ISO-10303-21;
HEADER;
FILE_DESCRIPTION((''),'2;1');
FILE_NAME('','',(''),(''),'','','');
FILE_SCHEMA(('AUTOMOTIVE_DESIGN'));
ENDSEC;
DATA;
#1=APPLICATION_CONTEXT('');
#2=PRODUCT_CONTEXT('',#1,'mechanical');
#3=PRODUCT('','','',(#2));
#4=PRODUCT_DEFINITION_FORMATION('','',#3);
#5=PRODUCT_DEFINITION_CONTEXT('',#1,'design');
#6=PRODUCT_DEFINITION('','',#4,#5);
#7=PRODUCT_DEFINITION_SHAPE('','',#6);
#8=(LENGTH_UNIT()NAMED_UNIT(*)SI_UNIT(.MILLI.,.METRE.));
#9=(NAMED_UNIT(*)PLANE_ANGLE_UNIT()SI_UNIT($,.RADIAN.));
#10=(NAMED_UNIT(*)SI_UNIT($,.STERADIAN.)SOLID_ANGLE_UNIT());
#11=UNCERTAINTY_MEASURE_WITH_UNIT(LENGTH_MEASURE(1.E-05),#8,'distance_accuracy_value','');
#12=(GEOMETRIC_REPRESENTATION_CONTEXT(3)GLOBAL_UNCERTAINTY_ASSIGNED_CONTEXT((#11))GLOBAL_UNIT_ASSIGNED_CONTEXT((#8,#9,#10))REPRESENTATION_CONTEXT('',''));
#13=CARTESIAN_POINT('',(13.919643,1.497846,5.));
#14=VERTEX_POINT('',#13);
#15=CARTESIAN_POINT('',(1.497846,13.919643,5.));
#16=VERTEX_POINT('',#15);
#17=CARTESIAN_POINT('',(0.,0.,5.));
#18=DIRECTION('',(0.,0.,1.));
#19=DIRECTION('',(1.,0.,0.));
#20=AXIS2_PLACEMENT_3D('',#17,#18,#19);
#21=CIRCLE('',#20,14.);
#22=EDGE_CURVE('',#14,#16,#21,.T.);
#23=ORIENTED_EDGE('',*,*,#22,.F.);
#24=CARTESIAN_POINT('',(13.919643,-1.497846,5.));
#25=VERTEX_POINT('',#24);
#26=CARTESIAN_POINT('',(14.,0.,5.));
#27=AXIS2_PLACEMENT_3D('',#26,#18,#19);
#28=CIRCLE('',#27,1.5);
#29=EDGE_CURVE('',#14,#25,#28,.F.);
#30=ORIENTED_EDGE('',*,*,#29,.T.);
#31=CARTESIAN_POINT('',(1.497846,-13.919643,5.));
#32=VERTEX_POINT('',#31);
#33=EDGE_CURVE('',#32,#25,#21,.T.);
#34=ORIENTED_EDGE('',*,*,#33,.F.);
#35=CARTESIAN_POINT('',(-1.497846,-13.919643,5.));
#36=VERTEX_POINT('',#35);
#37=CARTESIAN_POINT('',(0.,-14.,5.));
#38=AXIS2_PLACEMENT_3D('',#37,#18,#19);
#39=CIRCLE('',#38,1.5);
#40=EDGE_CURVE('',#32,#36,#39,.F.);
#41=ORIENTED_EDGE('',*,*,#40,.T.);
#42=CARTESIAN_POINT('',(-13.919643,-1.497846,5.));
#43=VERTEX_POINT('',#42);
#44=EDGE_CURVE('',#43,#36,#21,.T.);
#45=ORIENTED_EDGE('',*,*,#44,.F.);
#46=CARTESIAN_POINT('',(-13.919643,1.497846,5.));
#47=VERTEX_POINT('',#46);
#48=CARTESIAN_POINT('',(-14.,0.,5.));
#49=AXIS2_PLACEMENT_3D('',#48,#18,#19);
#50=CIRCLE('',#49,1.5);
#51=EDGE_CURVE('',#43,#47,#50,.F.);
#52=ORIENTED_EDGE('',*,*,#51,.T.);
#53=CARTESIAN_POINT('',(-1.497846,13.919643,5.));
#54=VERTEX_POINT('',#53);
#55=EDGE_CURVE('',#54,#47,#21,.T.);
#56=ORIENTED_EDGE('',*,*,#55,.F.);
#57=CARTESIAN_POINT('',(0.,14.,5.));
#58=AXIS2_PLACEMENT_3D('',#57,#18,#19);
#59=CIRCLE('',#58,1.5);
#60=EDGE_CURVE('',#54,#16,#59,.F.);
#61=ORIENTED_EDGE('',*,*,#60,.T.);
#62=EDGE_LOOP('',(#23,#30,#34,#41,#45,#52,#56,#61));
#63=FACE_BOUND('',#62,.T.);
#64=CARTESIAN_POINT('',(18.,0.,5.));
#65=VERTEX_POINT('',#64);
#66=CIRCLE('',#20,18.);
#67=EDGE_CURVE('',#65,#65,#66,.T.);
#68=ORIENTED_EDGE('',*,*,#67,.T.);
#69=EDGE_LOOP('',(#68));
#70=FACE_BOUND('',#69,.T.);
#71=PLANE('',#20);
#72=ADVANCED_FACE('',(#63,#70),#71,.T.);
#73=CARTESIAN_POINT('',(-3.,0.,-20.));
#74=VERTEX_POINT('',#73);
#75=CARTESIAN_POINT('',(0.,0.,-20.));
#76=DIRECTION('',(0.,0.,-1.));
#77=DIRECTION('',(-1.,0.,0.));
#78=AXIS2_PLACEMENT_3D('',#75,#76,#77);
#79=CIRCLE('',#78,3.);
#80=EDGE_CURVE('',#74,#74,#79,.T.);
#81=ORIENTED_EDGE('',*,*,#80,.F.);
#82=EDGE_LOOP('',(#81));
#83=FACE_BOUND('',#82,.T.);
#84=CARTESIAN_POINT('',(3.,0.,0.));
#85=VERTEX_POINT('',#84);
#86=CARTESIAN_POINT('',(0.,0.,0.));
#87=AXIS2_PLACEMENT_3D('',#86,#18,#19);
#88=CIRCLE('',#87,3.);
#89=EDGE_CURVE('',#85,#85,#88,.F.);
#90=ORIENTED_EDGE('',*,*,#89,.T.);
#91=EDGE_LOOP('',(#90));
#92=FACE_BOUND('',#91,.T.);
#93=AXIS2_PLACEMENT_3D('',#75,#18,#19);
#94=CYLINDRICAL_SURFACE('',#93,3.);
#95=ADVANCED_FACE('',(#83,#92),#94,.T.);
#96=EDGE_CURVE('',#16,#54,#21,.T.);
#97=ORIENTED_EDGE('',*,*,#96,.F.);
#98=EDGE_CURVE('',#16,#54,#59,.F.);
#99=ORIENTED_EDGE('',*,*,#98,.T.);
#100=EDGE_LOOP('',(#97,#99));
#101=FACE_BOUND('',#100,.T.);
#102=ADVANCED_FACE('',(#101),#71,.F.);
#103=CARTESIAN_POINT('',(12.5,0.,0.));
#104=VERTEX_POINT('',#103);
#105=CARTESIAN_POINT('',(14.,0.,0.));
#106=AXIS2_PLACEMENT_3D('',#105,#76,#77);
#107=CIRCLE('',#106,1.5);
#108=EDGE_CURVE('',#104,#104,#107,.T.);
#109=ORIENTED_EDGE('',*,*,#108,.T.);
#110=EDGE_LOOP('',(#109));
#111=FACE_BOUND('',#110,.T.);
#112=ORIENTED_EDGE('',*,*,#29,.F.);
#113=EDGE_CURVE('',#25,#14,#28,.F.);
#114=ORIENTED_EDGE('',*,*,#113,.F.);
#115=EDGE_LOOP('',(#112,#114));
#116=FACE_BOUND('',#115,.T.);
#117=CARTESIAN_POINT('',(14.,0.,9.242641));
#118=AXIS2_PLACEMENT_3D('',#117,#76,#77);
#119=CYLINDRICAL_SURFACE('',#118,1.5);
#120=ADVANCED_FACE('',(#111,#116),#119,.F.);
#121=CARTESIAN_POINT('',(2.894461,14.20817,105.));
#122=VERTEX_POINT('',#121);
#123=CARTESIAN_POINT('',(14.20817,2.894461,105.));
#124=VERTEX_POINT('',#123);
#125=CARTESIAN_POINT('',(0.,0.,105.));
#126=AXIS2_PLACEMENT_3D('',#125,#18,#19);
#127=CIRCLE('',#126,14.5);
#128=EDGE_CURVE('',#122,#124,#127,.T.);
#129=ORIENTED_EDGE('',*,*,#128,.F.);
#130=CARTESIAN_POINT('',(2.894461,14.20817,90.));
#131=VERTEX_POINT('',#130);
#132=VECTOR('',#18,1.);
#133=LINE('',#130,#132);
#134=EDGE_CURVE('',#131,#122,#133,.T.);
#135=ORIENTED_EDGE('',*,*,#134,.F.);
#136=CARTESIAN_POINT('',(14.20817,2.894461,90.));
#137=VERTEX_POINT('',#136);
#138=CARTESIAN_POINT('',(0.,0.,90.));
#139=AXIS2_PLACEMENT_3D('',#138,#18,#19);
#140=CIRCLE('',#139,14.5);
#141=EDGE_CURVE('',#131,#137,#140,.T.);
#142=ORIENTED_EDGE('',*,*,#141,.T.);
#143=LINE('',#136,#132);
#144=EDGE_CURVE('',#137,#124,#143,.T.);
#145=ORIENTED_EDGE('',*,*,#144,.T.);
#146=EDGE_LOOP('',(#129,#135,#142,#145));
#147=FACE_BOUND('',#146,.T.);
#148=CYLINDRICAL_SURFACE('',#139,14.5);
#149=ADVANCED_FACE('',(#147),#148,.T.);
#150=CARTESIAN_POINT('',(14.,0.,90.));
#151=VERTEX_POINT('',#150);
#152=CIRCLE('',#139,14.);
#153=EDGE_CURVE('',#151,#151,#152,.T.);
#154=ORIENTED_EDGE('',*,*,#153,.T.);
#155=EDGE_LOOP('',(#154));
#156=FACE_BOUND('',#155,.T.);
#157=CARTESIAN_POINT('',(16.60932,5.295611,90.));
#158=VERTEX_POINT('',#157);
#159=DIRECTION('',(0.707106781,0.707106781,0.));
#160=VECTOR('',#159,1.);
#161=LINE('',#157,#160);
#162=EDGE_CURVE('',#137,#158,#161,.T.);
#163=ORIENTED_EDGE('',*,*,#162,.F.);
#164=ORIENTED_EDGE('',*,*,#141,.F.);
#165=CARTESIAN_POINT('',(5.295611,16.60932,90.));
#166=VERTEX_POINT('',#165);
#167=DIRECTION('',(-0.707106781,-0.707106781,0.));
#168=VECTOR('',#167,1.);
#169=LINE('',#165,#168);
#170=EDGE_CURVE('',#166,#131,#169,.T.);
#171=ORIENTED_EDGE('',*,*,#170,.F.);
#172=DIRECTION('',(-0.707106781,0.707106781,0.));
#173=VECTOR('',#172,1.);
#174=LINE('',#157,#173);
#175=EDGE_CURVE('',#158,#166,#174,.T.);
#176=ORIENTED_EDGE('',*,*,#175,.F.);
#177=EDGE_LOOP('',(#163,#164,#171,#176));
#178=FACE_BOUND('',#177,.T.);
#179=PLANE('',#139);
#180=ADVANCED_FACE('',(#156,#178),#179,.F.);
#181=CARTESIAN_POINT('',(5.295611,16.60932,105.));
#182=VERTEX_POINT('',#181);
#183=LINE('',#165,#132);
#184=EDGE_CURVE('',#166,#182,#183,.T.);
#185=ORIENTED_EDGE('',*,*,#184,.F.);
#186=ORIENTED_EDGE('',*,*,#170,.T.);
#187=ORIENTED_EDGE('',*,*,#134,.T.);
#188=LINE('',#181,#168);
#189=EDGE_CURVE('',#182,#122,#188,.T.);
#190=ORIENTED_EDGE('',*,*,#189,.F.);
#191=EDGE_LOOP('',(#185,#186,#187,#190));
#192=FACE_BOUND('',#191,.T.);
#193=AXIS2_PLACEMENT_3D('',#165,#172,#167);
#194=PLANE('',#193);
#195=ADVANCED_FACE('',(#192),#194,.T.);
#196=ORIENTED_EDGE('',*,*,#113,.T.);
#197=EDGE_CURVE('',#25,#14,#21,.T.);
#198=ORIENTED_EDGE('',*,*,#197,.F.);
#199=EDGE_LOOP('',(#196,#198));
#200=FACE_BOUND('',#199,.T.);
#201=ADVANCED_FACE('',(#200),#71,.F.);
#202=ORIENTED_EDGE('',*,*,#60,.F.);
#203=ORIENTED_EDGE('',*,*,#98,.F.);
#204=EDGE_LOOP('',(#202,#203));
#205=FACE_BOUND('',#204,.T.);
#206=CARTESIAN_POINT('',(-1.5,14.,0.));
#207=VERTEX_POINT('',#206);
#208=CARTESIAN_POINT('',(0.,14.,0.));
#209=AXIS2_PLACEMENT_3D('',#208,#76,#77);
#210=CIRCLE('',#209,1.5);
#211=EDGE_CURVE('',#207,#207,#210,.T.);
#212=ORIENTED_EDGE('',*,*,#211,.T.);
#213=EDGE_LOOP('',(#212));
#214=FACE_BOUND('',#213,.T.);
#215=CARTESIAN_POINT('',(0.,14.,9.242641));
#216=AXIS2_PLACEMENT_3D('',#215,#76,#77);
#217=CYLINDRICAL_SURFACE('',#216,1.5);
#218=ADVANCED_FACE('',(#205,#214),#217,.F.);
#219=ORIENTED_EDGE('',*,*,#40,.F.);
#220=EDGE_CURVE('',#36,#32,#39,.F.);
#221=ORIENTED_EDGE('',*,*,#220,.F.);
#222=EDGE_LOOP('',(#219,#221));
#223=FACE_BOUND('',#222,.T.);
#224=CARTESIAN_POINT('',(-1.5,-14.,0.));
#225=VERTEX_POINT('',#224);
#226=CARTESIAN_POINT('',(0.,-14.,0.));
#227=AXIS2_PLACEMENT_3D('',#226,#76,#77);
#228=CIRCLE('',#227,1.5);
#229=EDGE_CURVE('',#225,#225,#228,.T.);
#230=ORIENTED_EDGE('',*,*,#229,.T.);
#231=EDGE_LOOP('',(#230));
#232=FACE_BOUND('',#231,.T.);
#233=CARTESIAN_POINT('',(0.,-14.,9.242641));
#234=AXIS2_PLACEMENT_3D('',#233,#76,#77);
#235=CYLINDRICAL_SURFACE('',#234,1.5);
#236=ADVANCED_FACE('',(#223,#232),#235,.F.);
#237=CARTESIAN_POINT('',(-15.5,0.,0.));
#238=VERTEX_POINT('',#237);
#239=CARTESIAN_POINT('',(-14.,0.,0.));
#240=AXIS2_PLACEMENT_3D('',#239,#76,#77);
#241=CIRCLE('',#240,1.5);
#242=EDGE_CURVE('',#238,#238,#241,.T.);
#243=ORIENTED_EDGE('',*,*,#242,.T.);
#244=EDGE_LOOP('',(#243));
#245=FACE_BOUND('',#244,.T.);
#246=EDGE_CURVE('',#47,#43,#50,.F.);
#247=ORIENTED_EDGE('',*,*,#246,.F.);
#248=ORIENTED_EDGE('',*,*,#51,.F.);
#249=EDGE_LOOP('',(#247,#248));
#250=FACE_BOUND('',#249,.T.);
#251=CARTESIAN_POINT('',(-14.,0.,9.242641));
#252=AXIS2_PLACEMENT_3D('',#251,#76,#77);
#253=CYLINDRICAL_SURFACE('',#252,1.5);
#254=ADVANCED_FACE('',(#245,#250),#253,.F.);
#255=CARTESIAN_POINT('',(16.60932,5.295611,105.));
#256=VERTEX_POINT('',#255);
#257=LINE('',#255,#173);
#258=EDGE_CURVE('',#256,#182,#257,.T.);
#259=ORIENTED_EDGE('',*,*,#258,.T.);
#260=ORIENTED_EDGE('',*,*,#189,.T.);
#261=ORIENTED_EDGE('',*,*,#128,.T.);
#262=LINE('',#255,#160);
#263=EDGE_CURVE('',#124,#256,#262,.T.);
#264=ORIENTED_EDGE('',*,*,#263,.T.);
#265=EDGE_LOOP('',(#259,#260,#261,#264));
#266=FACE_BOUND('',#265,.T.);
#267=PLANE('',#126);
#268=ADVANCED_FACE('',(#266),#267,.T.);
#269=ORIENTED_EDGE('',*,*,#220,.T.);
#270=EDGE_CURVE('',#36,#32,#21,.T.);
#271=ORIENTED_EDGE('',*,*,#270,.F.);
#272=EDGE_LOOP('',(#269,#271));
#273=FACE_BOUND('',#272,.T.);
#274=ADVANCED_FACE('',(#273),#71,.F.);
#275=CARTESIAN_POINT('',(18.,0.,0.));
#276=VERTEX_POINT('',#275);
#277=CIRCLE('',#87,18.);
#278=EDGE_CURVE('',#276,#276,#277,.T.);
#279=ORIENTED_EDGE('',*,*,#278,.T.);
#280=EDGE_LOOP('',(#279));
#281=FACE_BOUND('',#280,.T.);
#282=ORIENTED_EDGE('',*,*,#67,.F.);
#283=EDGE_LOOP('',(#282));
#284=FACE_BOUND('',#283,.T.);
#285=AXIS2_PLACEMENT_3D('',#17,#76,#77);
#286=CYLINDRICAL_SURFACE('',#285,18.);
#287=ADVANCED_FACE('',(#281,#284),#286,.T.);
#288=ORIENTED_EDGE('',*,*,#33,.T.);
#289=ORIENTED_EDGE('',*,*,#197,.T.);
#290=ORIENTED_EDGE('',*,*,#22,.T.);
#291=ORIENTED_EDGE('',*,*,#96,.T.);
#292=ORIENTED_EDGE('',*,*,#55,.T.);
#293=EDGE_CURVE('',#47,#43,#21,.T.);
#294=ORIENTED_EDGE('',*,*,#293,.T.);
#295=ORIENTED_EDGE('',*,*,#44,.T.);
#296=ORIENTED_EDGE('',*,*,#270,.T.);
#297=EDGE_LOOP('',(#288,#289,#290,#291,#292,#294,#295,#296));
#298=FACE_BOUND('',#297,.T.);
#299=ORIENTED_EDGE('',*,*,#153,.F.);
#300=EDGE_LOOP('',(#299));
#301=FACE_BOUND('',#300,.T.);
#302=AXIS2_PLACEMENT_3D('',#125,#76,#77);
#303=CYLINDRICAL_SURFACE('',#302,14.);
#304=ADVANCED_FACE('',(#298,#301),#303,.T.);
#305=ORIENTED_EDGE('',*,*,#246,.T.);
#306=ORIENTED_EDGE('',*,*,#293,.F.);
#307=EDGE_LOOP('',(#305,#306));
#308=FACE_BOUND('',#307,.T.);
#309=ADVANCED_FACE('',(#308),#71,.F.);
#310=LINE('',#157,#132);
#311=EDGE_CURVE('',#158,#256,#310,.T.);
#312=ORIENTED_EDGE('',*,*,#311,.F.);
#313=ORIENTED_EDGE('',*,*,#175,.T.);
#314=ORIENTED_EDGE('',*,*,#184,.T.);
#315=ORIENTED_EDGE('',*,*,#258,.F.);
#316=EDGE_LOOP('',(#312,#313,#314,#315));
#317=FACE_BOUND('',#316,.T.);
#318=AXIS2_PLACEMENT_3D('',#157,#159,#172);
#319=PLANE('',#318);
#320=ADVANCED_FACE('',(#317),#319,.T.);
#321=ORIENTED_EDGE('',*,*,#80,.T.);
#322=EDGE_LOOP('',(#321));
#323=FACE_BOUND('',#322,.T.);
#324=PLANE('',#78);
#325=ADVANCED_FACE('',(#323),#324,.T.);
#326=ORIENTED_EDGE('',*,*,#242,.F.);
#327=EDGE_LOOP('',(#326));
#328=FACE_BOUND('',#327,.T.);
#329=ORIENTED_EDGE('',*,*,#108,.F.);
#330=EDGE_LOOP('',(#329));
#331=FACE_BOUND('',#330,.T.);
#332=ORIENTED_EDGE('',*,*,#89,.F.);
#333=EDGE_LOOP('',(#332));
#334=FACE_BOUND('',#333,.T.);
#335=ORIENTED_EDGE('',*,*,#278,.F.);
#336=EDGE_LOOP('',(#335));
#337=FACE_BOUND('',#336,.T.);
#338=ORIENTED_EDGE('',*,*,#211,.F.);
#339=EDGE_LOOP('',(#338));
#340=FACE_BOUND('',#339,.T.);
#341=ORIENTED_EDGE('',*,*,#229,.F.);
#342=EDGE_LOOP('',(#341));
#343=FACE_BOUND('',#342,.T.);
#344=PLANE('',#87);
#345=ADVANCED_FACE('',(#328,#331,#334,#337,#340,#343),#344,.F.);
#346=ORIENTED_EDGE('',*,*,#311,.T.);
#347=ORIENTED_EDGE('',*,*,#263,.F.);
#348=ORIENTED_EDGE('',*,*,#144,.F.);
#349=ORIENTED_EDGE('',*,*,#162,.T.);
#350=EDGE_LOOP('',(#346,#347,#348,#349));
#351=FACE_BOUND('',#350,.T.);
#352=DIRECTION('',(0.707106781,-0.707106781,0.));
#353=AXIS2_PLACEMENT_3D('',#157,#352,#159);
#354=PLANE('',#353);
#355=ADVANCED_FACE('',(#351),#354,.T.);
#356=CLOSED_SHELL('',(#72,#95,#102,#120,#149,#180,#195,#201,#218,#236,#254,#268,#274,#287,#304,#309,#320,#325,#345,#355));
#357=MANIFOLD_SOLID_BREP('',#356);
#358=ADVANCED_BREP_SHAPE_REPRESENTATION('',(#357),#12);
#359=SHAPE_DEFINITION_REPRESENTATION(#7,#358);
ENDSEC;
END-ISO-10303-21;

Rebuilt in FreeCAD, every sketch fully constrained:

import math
import FreeCAD as App
import Part
import Sketcher

V = App.Vector
Q = App.Units.Quantity

doc = App.newDocument("Part")
body = doc.addObject("PartDesign::Body", "Body")

# Sketch on XY plane
sketch1 = body.newObject("Sketcher::SketchObject", "Sketch")
sketch1.AttachmentSupport = (doc.getObject("XY_Plane"), [""])
sketch1.MapMode = "FlatFace"
sketch1.addGeometry(Part.Circle(V(0, 0, 0), V(0, 0, 1), 18), False)
sketch1.addConstraint([
    Sketcher.Constraint("Coincident", 0, 3, -1, 1),
    Sketcher.Constraint("Diameter", 0, 36.0),
])
pad1 = body.newObject("PartDesign::Pad", "Pad")
pad1.Profile = sketch1
pad1.Length = 5

# Sketch on XY plane
sketch2 = body.newObject("Sketcher::SketchObject", "Sketch001")
sketch2.AttachmentSupport = (doc.getObject("XY_Plane"), [""])
sketch2.MapMode = "FlatFace"
sketch2.AttachmentOffset = App.Placement(V(0, 0, 5), App.Rotation())
sketch2.addGeometry(Part.Circle(V(0, 0, 0), V(0, 0, 1), 14), False)
sketch2.addConstraint([
    Sketcher.Constraint("Coincident", 0, 3, -1, 1),
    Sketcher.Constraint("Diameter", 0, 28.0),
])
pad2 = body.newObject("PartDesign::Pad", "Pad001")
pad2.Profile = sketch2
pad2.Length = 100

# Sketch on XY plane
sketch3 = body.newObject("Sketcher::SketchObject", "Sketch002")
sketch3.AttachmentSupport = (doc.getObject("XY_Plane"), [""])
sketch3.MapMode = "FlatFace"
sketch3.AttachmentOffset = App.Placement(V(0, 0, 105), App.Rotation())
sketch3.addGeometry([
    Part.LineSegment(V(16.6, 5.3, 0), V(5.3, 16.6, 0)),
    Part.LineSegment(V(5.3, 16.6, 0), V(2.9, 14.2, 0)),
    Part.ArcOfCircle(Part.Circle(V(0, 0, 0), V(0, 0, 1), 14.5), math.radians(78), math.radians(372)),
    Part.LineSegment(V(14.2, 2.9, 0), V(16.6, 5.3, 0)),
], False)
sketch3.addConstraint([
    Sketcher.Constraint("Coincident", 0, 2, 1, 1),
    Sketcher.Constraint("Coincident", 1, 2, 2, 1),
    Sketcher.Constraint("Coincident", 2, 2, 3, 1),
    Sketcher.Constraint("Coincident", 3, 2, 0, 1),
    Sketcher.Constraint("Coincident", 2, 3, -1, 1),
    Sketcher.Constraint("Perpendicular", 0, 1),
    Sketcher.Constraint("Parallel", 1, 3),
    Sketcher.Constraint("Equal", 1, 3),
    Sketcher.Constraint("Radius", 2, 14.5),
    Sketcher.Constraint("Angle", 0, Q("135 deg")),
    Sketcher.Constraint("Distance", 0, 16.0),
    Sketcher.Constraint("Distance", 1, 3.395739),
])
pad3 = body.newObject("PartDesign::Pad", "Pad002")
pad3.Profile = sketch3
pad3.Length = 15
pad3.Reversed = True

# Sketch on XY plane
sketch4 = body.newObject("Sketcher::SketchObject", "Sketch003")
sketch4.AttachmentSupport = (doc.getObject("XY_Plane"), [""])
sketch4.MapMode = "FlatFace"
sketch4.addGeometry([
    Part.Circle(V(0, 14, 0), V(0, 0, 1), 1.5),
    Part.Circle(V(-14, 0, 0), V(0, 0, 1), 1.5),
    Part.Circle(V(0, -14, 0), V(0, 0, 1), 1.5),
    Part.Circle(V(14, 0, 0), V(0, 0, 1), 1.5),
], False)
sketch4.addConstraint([
    Sketcher.Constraint("Equal", 0, 1),
    Sketcher.Constraint("Equal", 1, 2),
    Sketcher.Constraint("Equal", 2, 3),
    Sketcher.Constraint("Symmetric", 0, 3, 2, 3, -1, 1),
    Sketcher.Constraint("Symmetric", 1, 3, 3, 3, -1, 1),
    Sketcher.Constraint("PointOnObject", 0, 3, -2),
    Sketcher.Constraint("PointOnObject", 1, 3, -1),
    Sketcher.Constraint("Diameter", 0, 3.0),
    Sketcher.Constraint("DistanceY", -1, 1, 0, 3, 14.0),
    Sketcher.Constraint("DistanceX", 1, 3, -1, 1, 14.0),
])
pocket1 = body.newObject("PartDesign::Pocket", "Pocket")
pocket1.Profile = sketch4
pocket1.Length = 5
pocket1.Reversed = True

# Sketch on XY plane
sketch5 = body.newObject("Sketcher::SketchObject", "Sketch004")
sketch5.AttachmentSupport = (doc.getObject("XY_Plane"), [""])
sketch5.MapMode = "FlatFace"
sketch5.addGeometry(Part.Circle(V(0, 0, 0), V(0, 0, 1), 3), False)
sketch5.addConstraint([
    Sketcher.Constraint("Coincident", 0, 3, -1, 1),
    Sketcher.Constraint("Diameter", 0, 6.0),
])
pad4 = body.newObject("PartDesign::Pad", "Pad003")
pad4.Profile = sketch5
pad4.Length = 20
pad4.Reversed = True

doc.recompute()
